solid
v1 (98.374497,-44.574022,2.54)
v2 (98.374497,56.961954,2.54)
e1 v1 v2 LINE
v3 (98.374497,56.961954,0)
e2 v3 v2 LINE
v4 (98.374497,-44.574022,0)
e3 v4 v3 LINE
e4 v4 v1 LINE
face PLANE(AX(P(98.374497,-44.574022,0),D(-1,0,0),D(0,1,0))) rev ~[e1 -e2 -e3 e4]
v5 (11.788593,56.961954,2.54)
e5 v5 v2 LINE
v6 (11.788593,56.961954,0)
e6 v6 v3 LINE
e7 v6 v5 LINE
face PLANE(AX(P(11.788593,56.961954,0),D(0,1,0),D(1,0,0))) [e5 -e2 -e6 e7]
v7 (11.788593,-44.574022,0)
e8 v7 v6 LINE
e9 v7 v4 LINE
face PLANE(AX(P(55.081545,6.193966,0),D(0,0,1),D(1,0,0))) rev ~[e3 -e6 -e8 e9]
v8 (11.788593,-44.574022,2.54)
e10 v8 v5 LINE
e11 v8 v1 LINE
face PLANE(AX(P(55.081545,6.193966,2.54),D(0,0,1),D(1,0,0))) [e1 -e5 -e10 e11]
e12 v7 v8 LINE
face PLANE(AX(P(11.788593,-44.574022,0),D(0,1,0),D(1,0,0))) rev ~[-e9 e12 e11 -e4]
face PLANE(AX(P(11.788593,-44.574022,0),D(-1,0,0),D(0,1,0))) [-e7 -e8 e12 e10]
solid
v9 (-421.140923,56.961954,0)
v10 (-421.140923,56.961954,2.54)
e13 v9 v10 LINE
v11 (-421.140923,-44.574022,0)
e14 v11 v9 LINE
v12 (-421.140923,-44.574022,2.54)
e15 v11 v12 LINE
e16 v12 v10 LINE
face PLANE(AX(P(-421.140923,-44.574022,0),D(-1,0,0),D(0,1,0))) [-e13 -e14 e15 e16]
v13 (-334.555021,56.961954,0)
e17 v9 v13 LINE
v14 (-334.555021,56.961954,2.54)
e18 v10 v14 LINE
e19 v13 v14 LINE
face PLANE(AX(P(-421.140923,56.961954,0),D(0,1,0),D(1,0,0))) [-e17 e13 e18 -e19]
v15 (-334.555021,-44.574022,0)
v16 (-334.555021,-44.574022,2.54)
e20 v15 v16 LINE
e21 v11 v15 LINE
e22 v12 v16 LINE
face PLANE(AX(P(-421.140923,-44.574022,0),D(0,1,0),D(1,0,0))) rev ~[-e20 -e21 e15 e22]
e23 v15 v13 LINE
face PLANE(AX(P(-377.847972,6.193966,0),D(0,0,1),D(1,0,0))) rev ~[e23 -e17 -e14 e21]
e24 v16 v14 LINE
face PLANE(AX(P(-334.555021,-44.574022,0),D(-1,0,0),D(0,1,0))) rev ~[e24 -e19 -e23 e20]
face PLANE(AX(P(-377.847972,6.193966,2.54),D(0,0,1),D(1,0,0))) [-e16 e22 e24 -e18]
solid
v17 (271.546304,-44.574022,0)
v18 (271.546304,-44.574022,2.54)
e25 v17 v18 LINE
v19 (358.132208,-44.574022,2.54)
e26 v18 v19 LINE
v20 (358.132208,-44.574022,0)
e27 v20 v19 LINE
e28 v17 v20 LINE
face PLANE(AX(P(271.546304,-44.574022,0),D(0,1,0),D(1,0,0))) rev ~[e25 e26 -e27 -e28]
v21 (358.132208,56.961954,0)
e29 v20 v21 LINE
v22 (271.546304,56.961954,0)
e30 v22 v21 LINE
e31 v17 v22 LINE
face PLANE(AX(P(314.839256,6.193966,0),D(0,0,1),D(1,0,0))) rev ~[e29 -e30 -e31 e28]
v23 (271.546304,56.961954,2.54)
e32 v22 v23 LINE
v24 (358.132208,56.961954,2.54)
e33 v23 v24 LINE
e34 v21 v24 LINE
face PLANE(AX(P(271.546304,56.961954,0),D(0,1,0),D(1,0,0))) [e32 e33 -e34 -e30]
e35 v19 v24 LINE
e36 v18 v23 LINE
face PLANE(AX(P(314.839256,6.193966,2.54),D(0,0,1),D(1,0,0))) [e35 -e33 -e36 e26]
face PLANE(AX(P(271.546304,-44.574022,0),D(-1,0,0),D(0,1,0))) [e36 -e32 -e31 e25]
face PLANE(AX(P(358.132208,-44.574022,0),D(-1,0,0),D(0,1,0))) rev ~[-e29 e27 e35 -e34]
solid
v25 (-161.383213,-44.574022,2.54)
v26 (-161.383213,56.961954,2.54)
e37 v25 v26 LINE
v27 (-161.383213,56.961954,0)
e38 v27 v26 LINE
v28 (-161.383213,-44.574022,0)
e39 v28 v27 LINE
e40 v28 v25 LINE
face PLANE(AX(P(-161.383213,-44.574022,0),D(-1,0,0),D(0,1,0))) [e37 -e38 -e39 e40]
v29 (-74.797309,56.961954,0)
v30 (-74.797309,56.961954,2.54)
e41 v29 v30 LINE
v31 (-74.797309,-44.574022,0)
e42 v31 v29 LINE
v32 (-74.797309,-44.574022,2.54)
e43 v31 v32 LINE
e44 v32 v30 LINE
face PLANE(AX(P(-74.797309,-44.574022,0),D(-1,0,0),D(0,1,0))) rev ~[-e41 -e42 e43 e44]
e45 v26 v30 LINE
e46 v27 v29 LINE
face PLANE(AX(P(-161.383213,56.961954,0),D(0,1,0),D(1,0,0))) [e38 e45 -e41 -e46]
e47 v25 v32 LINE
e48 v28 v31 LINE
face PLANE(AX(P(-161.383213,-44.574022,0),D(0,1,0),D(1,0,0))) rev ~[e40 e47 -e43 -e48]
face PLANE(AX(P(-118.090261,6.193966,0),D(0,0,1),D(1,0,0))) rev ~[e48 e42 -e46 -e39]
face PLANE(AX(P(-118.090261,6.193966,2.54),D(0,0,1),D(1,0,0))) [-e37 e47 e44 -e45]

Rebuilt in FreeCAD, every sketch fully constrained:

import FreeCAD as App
import Part
import Sketcher

V = App.Vector


def add_polygon(sketch, points):
    """Adds a closed chain of lines whose ends are joined by coincident constraints."""
    first, n = sketch.GeometryCount, len(points)
    for a, b in zip(points, points[1:] + points[:1]):
        sketch.addGeometry(Part.LineSegment(App.Vector(*a, 0), App.Vector(*b, 0)), False)
    for i in range(n):
        sketch.addConstraint(Sketcher.Constraint("Coincident", first + i, 2, first + (i + 1) % n, 1))

doc = App.newDocument("Part")
params = doc.addObject("Spreadsheet::Sheet", "Params")
for row, (alias, value) in enumerate([
    ("pad1_length", "0.1 in"),
    ("pad2_length", "0.1 in"),
    ("pad3_length", "0.1 in"),
    ("pad4_length", "0.1 in"),
], start=1):
    params.set(f"A{row}", alias)
    params.set(f"B{row}", "=" + value)
    params.setAlias(f"B{row}", alias)

body = doc.addObject("PartDesign::Body", "Body")

# Sketch on XY plane
sketch1 = doc.addObject("Sketcher::SketchObject", "Sketch")
body.addObject(sketch1)
sketch1.AttachmentSupport = (doc.XY_Plane, [""])
sketch1.MapMode = "FlatFace"
add_polygon(sketch1, [(-421, 57), (-421, -45), (-335, -45), (-335, 57)])  # lines 0-3
sketch1.addConstraint([
    Sketcher.Constraint("Vertical", 0),
    Sketcher.Constraint("Horizontal", 1),
    Sketcher.Constraint("Vertical", 2),
    Sketcher.Constraint("Horizontal", 3),
    Sketcher.Constraint("DistanceX", 1, 1, 1, 2, 86.585903),
    Sketcher.Constraint("DistanceY", 0, 2, 0, 1, 101.535976),
    Sketcher.Constraint("DistanceX", 1, 2, -1, 1, 334.555021),
    Sketcher.Constraint("DistanceY", 0, 2, -1, 1, 44.574022),
])
pad1 = doc.addObject("PartDesign::Pad", "Pad")
body.addObject(pad1)
pad1.Profile = sketch1
pad1.setExpression("Length", "Params.pad1_length")
body2 = doc.addObject("PartDesign::Body", "Body001")

# Sketch on XY plane
sketch2 = doc.addObject("Sketcher::SketchObject", "Sketch001")
body2.addObject(sketch2)
sketch2.AttachmentSupport = (doc.getObject("XY_Plane001"), [""])
sketch2.MapMode = "FlatFace"
add_polygon(sketch2, [(-161, 57), (-161, -45), (-75, -45), (-75, 57)])  # lines 0-3
sketch2.addConstraint([
    Sketcher.Constraint("Vertical", 0),
    Sketcher.Constraint("Horizontal", 1),
    Sketcher.Constraint("Vertical", 2),
    Sketcher.Constraint("Horizontal", 3),
    Sketcher.Constraint("DistanceX", 1, 1, 1, 2, 86.585903),
    Sketcher.Constraint("DistanceY", 0, 2, 0, 1, 101.535976),
    Sketcher.Constraint("DistanceX", 1, 2, -1, 1, 74.797309),
    Sketcher.Constraint("DistanceY", 0, 2, -1, 1, 44.574022),
])
pad2 = doc.addObject("PartDesign::Pad", "Pad001")
body2.addObject(pad2)
pad2.Profile = sketch2
pad2.setExpression("Length", "Params.pad2_length")
body3 = doc.addObject("PartDesign::Body", "Body002")

# Sketch on XY plane
sketch3 = doc.addObject("Sketcher::SketchObject", "Sketch002")
body3.addObject(sketch3)
sketch3.AttachmentSupport = (doc.getObject("XY_Plane002"), [""])
sketch3.MapMode = "FlatFace"
add_polygon(sketch3, [(12, 57), (12, -45), (98, -45), (98, 57)])  # lines 0-3
sketch3.addConstraint([
    Sketcher.Constraint("Vertical", 0),
    Sketcher.Constraint("Horizontal", 1),
    Sketcher.Constraint("Vertical", 2),
    Sketcher.Constraint("Horizontal", 3),
    Sketcher.Constraint("DistanceX", 1, 1, 1, 2, 86.585903),
    Sketcher.Constraint("DistanceY", 0, 2, 0, 1, 101.535976),
    Sketcher.Constraint("DistanceX", -1, 1, 0, 2, 11.788593),
    Sketcher.Constraint("DistanceY", 0, 2, -1, 1, 44.574022),
])
pad3 = doc.addObject("PartDesign::Pad", "Pad002")
body3.addObject(pad3)
pad3.Profile = sketch3
pad3.setExpression("Length", "Params.pad3_length")
body4 = doc.addObject("PartDesign::Body", "Body003")

# Sketch on XY plane
sketch4 = doc.addObject("Sketcher::SketchObject", "Sketch003")
body4.addObject(sketch4)
sketch4.AttachmentSupport = (doc.getObject("XY_Plane003"), [""])
sketch4.MapMode = "FlatFace"
add_polygon(sketch4, [(272, 57), (272, -45), (358, -45), (358, 57)])  # lines 0-3
sketch4.addConstraint([
    Sketcher.Constraint("Vertical", 0),
    Sketcher.Constraint("Horizontal", 1),
    Sketcher.Constraint("Vertical", 2),
    Sketcher.Constraint("Horizontal", 3),
    Sketcher.Constraint("DistanceX", 1, 1, 1, 2, 86.585904),
    Sketcher.Constraint("DistanceY", 0, 2, 0, 1, 101.535976),
    Sketcher.Constraint("DistanceX", -1, 1, 1, 2, 358.132208),
    Sketcher.Constraint("DistanceY", 0, 2, -1, 1, 44.574022),
])
pad4 = doc.addObject("PartDesign::Pad", "Pad003")
body4.addObject(pad4)
pad4.Profile = sketch4
pad4.setExpression("Length", "Params.pad4_length")

doc.recompute()
